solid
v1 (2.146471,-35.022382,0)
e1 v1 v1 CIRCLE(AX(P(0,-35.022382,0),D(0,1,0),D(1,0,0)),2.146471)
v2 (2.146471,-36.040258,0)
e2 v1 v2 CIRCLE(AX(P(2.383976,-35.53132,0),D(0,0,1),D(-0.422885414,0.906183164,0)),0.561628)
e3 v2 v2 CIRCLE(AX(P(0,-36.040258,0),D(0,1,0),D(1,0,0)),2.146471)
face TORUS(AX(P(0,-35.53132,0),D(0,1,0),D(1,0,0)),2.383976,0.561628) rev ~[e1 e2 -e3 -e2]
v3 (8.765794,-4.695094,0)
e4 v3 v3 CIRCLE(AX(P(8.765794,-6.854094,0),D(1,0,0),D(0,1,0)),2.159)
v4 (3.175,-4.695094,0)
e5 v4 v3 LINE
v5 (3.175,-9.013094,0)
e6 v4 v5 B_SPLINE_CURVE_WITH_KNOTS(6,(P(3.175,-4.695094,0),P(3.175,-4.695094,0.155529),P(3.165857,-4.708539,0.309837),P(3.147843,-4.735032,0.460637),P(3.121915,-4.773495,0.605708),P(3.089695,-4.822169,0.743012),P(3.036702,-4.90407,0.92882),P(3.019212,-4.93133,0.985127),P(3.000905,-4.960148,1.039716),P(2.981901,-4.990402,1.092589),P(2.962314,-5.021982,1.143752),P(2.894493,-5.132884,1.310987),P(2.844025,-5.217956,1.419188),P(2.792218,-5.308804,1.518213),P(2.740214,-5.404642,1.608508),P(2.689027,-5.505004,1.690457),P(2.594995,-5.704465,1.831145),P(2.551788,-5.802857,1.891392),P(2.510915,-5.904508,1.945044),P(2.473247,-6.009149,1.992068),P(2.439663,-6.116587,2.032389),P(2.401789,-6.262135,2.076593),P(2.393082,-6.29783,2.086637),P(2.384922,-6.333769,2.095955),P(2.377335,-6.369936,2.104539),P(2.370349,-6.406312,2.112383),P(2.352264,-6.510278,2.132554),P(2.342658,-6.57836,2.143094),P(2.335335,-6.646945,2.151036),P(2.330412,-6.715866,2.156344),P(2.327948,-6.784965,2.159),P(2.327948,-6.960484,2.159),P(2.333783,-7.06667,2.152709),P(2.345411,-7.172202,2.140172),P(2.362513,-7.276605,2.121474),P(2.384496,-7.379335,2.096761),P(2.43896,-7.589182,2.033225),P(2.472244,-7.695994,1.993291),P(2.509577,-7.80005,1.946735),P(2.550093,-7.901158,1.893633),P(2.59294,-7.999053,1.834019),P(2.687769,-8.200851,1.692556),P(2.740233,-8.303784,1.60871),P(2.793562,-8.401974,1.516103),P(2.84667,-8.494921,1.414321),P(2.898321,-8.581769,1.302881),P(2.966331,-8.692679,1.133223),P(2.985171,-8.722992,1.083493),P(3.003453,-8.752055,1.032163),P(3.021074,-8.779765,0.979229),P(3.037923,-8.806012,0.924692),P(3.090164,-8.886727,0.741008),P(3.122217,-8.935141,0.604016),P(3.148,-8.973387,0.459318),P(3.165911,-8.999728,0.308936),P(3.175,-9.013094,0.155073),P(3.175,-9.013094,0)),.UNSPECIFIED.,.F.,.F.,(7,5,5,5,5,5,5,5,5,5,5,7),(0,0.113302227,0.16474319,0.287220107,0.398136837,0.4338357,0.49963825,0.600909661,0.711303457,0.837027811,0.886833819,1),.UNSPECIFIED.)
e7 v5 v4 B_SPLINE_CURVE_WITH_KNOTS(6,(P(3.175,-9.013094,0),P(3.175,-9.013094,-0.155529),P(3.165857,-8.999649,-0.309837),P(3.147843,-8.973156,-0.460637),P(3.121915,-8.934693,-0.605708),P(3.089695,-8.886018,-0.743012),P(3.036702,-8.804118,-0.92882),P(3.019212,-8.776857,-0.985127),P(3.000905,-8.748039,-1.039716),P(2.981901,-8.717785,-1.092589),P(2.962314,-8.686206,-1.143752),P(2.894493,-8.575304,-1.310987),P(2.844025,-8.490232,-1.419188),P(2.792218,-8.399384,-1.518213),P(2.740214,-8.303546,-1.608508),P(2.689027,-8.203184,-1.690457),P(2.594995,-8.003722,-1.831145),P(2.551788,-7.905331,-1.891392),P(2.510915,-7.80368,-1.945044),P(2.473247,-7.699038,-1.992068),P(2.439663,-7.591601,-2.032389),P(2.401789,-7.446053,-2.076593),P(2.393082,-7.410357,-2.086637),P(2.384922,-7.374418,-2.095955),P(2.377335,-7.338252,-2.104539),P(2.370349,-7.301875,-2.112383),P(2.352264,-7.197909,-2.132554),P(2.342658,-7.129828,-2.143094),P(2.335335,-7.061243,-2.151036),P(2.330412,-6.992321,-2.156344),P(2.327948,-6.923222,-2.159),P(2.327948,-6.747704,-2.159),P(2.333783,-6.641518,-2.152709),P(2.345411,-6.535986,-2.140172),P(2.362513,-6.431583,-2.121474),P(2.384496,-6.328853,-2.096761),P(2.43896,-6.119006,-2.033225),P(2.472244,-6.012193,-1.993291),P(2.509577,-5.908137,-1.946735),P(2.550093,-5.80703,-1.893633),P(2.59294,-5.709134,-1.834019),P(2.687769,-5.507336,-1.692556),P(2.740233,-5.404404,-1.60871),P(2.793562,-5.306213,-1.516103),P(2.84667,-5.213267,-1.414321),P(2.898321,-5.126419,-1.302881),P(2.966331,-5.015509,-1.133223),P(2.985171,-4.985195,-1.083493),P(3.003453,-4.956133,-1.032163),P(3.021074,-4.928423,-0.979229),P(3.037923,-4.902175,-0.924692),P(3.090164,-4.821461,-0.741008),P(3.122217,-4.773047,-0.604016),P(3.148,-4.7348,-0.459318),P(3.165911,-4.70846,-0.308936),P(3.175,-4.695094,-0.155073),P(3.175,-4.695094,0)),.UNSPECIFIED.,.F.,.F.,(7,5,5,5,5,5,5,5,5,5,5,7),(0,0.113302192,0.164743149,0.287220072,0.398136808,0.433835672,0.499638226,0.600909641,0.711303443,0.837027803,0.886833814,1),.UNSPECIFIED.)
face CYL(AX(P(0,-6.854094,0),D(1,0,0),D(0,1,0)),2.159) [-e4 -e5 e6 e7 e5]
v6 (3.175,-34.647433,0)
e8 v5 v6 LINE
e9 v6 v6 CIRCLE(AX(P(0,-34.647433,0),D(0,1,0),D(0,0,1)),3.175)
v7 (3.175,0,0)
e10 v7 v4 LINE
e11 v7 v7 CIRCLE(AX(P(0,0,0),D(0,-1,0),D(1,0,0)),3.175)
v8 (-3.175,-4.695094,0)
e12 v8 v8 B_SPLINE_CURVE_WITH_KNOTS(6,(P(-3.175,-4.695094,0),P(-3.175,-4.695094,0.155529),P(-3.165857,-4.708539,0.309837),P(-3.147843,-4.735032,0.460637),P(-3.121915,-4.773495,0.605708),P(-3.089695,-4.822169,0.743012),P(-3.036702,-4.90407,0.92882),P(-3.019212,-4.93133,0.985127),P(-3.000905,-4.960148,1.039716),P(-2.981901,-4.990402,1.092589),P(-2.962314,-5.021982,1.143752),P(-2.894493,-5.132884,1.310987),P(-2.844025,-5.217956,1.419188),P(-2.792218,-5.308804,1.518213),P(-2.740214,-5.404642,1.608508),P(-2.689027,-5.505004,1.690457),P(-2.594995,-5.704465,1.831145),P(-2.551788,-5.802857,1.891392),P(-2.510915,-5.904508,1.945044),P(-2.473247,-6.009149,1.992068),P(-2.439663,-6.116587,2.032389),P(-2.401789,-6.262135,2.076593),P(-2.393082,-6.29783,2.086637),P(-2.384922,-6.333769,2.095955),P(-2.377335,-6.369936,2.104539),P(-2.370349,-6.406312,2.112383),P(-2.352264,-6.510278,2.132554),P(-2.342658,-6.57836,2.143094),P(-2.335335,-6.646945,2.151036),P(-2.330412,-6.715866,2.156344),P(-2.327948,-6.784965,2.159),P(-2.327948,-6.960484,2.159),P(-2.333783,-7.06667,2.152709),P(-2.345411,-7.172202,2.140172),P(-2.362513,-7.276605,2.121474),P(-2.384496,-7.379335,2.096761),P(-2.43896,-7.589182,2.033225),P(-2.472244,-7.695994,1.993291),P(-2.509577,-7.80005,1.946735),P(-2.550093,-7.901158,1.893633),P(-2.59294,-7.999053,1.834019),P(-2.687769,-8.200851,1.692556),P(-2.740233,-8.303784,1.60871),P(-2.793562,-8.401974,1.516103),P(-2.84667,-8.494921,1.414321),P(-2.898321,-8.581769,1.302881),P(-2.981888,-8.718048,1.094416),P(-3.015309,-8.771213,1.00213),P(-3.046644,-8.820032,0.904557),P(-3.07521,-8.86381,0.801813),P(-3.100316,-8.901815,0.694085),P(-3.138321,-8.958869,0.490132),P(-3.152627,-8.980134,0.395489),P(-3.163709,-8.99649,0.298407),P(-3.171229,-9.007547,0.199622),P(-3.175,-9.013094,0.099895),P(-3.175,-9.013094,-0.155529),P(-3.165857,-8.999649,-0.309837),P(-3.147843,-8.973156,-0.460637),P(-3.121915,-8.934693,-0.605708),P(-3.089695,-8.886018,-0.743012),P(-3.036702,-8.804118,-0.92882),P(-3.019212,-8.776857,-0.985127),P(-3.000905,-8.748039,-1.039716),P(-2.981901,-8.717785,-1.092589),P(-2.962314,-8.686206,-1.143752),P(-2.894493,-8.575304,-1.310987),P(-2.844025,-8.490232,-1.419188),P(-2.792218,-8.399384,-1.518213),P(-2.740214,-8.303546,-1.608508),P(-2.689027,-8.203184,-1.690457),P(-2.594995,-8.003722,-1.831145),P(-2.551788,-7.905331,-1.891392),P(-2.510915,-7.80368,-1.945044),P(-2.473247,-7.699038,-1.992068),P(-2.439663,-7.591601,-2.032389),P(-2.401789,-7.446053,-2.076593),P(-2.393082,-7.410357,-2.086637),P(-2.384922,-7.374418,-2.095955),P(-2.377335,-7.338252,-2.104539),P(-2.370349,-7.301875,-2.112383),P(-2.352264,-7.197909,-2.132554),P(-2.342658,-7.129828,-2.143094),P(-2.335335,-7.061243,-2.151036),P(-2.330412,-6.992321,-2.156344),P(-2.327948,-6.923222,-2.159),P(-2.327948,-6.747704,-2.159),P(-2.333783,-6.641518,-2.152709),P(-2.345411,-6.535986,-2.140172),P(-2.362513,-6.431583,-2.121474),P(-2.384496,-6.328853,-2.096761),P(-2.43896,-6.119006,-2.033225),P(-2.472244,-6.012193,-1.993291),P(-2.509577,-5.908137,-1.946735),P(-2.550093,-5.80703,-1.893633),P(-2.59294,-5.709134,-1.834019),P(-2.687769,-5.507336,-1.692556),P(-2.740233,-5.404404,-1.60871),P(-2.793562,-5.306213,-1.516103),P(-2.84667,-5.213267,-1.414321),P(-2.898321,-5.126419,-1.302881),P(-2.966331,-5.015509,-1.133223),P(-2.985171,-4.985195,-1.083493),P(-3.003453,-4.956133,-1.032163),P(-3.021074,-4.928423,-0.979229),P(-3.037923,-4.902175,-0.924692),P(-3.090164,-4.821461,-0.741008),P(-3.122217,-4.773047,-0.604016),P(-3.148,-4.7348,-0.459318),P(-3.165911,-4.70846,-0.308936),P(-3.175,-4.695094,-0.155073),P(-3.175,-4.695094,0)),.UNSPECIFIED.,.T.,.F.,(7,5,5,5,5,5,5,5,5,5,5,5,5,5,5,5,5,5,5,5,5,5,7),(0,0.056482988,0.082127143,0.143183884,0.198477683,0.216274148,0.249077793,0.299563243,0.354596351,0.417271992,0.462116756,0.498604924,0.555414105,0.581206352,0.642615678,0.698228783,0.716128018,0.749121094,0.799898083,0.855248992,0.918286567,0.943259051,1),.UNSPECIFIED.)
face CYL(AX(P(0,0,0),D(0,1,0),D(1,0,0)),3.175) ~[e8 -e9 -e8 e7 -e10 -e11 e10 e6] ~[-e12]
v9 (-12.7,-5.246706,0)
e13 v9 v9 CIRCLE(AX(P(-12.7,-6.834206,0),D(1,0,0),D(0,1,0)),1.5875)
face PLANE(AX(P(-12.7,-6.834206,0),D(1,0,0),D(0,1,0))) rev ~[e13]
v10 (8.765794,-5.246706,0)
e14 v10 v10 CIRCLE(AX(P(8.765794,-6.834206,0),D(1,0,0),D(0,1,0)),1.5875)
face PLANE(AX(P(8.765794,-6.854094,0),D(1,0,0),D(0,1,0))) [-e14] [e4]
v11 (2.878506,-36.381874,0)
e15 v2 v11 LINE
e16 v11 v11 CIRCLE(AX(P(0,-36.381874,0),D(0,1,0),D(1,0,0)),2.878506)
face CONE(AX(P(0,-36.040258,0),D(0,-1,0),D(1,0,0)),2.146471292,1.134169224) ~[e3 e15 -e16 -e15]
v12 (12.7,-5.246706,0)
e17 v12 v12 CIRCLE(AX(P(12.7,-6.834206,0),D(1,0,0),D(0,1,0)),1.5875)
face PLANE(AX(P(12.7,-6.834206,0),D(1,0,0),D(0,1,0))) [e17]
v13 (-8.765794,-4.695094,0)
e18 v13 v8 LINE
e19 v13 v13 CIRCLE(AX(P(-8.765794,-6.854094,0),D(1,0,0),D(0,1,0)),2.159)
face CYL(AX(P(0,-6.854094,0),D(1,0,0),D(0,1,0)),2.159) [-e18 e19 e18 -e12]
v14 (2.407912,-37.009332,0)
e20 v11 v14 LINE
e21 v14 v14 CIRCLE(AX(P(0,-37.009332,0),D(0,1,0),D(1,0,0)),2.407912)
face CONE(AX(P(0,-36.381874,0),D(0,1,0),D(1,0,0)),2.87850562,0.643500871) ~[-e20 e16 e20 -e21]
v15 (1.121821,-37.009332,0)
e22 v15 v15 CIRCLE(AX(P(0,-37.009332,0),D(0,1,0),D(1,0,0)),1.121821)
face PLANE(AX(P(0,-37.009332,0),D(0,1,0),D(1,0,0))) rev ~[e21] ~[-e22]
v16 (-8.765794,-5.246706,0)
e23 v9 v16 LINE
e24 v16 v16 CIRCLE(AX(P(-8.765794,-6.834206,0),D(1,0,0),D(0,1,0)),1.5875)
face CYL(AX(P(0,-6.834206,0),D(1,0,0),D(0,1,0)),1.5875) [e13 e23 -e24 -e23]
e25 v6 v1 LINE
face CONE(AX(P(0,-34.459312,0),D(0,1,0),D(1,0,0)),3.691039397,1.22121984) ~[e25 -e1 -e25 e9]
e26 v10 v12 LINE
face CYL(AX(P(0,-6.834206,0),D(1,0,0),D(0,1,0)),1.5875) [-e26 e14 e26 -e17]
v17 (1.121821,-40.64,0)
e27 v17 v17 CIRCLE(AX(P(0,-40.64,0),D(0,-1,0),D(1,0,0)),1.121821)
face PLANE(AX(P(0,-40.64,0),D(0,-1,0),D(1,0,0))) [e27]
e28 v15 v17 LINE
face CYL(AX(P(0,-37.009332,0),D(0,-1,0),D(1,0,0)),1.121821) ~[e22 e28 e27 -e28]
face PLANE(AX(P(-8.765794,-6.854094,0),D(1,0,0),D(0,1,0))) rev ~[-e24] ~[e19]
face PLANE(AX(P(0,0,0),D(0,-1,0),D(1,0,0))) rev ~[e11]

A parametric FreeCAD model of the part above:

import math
import FreeCAD as App
import Part
import Sketcher
from FreeCAD import Vector
Q = App.Units.Quantity

doc = App.newDocument("Part")
params = doc.addObject("Spreadsheet::Sheet", "Params")
for row, (alias, value) in enumerate([
    ("sketch1_diameter", "0.25 in"),
    ("pad1_length", "1.6 in"),
    ("groove_angle", "360 deg"),
    ("sketch3_diameter", "0.17 in"),
    ("pad2_length", "17.531588 mm"),
    ("sketch4_diameter", "0.125 in"),
    ("pad3_length", "1 in"),
], start=1):
    params.set(f"A{row}", alias)
    params.set(f"B{row}", "=" + value)
    params.setAlias(f"B{row}", alias)

body = doc.addObject("PartDesign::Body", "Body")

# Sketch on XZ plane
sketch1 = body.newObject("Sketcher::SketchObject", "Sketch")
sketch1.AttachmentSupport = (doc.getObject("XZ_Plane"), [""])
sketch1.MapMode = "FlatFace"
sketch1.addGeometry(Part.Circle(Vector(0, 0, 0), Vector(0, 0, 1), 3.2), False)
sketch1.addConstraint(Sketcher.Constraint("Coincident", 0, 3, -1, 1))
sketch1.addConstraint(Sketcher.Constraint("Diameter", 0, Q("0.25 in")))
sketch1.setExpression("Constraints[1]", "Params.sketch1_diameter")
pad1 = body.newObject("PartDesign::Pad", "Pad")
pad1.Profile = sketch1
pad1.setExpression("Length", "Params.pad1_length")

# Sketch on XY plane
sketch2 = body.newObject("Sketcher::SketchObject", "Sketch001")
sketch2.AttachmentSupport = (doc.getObject("XY_Plane"), [""])
sketch2.MapMode = "FlatFace"
sketch2.addGeometry(Part.LineSegment(Vector(2.48, -48.68, 0), Vector(2.48, -48.45, 0)), False)
sketch2.addGeometry(Part.LineSegment(Vector(2.48, -48.45, 0), Vector(3.69, -48.45, 0)), False)
sketch2.addGeometry(Part.LineSegment(Vector(3.69, -48.45, 0), Vector(3.69, -34.46, 0)), False)
sketch2.addGeometry(Part.LineSegment(Vector(3.69, -34.46, 0), Vector(2.15, -35.02, 0)), False)
sketch2.addGeometry(Part.ArcOfCircle(Part.Circle(Vector(2.38, -35.53, 0), Vector(0, 0, 1), 0.56), math.radians(115), math.radians(245)), False)
sketch2.addGeometry(Part.LineSegment(Vector(2.15, -36.04, 0), Vector(2.88, -36.38, 0)), False)
sketch2.addGeometry(Part.LineSegment(Vector(2.88, -36.38, 0), Vector(2.41, -37.01, 0)), False)
sketch2.addGeometry(Part.LineSegment(Vector(2.41, -37.01, 0), Vector(1.12, -37.01, 0)), False)
sketch2.addGeometry(Part.LineSegment(Vector(1.12, -37.01, 0), Vector(1.12, -46.98, 0)), False)
sketch2.addGeometry(Part.LineSegment(Vector(1.12, -46.98, 0), Vector(2.48, -48.68, 0)), False)
sketch2.addConstraint(Sketcher.Constraint("Coincident", 0, 2, 1, 1))
sketch2.addConstraint(Sketcher.Constraint("Coincident", 1, 2, 2, 1))
sketch2.addConstraint(Sketcher.Constraint("Coincident", 2, 2, 3, 1))
sketch2.addConstraint(Sketcher.Constraint("Coincident", 3, 2, 4, 1))
sketch2.addConstraint(Sketcher.Constraint("Tangent", 4, 2, 5, 1))
sketch2.addConstraint(Sketcher.Constraint("Coincident", 5, 2, 6, 1))
sketch2.addConstraint(Sketcher.Constraint("Coincident", 6, 2, 7, 1))
sketch2.addConstraint(Sketcher.Constraint("Coincident", 7, 2, 8, 1))
sketch2.addConstraint(Sketcher.Constraint("Coincident", 8, 2, 9, 1))
sketch2.addConstraint(Sketcher.Constraint("Coincident", 9, 2, 0, 1))
sketch2.addConstraint(Sketcher.Constraint("Vertical", 0))
sketch2.addConstraint(Sketcher.Constraint("Horizontal", 1))
sketch2.addConstraint(Sketcher.Constraint("Vertical", 2))
sketch2.addConstraint(Sketcher.Constraint("Horizontal", 7))
sketch2.addConstraint(Sketcher.Constraint("Vertical", 8))
sketch2.addConstraint(Sketcher.Constraint("Vertical", 3, 2, 4, 2))
sketch2.addConstraint(Sketcher.Constraint("Radius", 4, Q("0.561628 mm")))
sketch2.addConstraint(Sketcher.Constraint("DistanceX", 1, 1, 1, 2, Q("1.206302 mm")))
sketch2.addConstraint(Sketcher.Constraint("Distance", 3, Q("1.644001 mm")))
sketch2.addConstraint(Sketcher.Constraint("DistanceX", 7, 2, 7, 1, Q("1.286091 mm")))
sketch2.addConstraint(Sketcher.Constraint("DistanceY", 0, 1, 0, 2, Q("0.22823 mm")))
sketch2.addConstraint(Sketcher.Constraint("DistanceY", 2, 1, 2, 2, Q("13.991091 mm")))
sketch2.addConstraint(Sketcher.Constraint("DistanceY", 8, 2, 8, 1, Q("9.967469 mm")))
sketch2.addConstraint(Sketcher.Constraint("DistanceY", 8, 2, -1, 1, Q("46.976801 mm")))
sketch2.addConstraint(Sketcher.Constraint("DistanceY", 0, 2, 8, 2, Q("1.473602 mm")))
sketch2.addConstraint(Sketcher.Constraint("Distance", 5, Q("0.807822 mm")))
sketch2.addConstraint(Sketcher.Constraint("DistanceY", 4, 3, -1, 1, Q("35.53132 mm")))
sketch2.addConstraint(Sketcher.Constraint("DistanceX", -1, 1, 1, 2, Q("3.691039 mm")))
sketch2.addConstraint(Sketcher.Constraint("DistanceX", -1, 1, 3, 2, Q("2.146471 mm")))
sketch2.addConstraint(Sketcher.Constraint("DistanceX", -1, 1, 7, 2, Q("1.121821 mm")))
groove = body.newObject("PartDesign::Groove", "Groove")
groove.Profile = sketch2
groove.ReferenceAxis = (sketch2, ["V_Axis"])
groove.setExpression("Angle", "Params.groove_angle")

# Sketch on YZ plane
sketch3 = body.newObject("Sketcher::SketchObject", "Sketch002")
sketch3.AttachmentSupport = (doc.getObject("YZ_Plane"), [""])
sketch3.MapMode = "FlatFace"
sketch3.addGeometry(Part.Circle(Vector(-6.9, 0, 0), Vector(0, 0, 1), 2.2), False)
sketch3.addConstraint(Sketcher.Constraint("PointOnObject", 0, 3, -1))
sketch3.addConstraint(Sketcher.Constraint("Diameter", 0, Q("0.17 in")))
sketch3.addConstraint(Sketcher.Constraint("DistanceX", 0, 3, -1, 1, Q("6.854094 mm")))
sketch3.setExpression("Constraints[1]", "Params.sketch3_diameter")
pad2 = body.newObject("PartDesign::Pad", "Pad001")
pad2.Profile = sketch3
pad2.setExpression("Length", "Params.pad2_length")
pad2.Midplane = True

# Sketch on YZ plane
sketch4 = body.newObject("Sketcher::SketchObject", "Sketch003")
sketch4.AttachmentSupport = (doc.getObject("YZ_Plane"), [""])
sketch4.MapMode = "FlatFace"
sketch4.addGeometry(Part.Circle(Vector(-6.8, 0, 0), Vector(0, 0, 1), 1.6), False)
sketch4.addConstraint(Sketcher.Constraint("PointOnObject", 0, 3, -1))
sketch4.addConstraint(Sketcher.Constraint("Diameter", 0, Q("0.125 in")))
sketch4.addConstraint(Sketcher.Constraint("DistanceX", 0, 3, -1, 1, Q("6.834206 mm")))
sketch4.setExpression("Constraints[1]", "Params.sketch4_diameter")
pad3 = body.newObject("PartDesign::Pad", "Pad002")
pad3.Profile = sketch4
pad3.setExpression("Length", "Params.pad3_length")
pad3.Midplane = True

doc.recompute()
